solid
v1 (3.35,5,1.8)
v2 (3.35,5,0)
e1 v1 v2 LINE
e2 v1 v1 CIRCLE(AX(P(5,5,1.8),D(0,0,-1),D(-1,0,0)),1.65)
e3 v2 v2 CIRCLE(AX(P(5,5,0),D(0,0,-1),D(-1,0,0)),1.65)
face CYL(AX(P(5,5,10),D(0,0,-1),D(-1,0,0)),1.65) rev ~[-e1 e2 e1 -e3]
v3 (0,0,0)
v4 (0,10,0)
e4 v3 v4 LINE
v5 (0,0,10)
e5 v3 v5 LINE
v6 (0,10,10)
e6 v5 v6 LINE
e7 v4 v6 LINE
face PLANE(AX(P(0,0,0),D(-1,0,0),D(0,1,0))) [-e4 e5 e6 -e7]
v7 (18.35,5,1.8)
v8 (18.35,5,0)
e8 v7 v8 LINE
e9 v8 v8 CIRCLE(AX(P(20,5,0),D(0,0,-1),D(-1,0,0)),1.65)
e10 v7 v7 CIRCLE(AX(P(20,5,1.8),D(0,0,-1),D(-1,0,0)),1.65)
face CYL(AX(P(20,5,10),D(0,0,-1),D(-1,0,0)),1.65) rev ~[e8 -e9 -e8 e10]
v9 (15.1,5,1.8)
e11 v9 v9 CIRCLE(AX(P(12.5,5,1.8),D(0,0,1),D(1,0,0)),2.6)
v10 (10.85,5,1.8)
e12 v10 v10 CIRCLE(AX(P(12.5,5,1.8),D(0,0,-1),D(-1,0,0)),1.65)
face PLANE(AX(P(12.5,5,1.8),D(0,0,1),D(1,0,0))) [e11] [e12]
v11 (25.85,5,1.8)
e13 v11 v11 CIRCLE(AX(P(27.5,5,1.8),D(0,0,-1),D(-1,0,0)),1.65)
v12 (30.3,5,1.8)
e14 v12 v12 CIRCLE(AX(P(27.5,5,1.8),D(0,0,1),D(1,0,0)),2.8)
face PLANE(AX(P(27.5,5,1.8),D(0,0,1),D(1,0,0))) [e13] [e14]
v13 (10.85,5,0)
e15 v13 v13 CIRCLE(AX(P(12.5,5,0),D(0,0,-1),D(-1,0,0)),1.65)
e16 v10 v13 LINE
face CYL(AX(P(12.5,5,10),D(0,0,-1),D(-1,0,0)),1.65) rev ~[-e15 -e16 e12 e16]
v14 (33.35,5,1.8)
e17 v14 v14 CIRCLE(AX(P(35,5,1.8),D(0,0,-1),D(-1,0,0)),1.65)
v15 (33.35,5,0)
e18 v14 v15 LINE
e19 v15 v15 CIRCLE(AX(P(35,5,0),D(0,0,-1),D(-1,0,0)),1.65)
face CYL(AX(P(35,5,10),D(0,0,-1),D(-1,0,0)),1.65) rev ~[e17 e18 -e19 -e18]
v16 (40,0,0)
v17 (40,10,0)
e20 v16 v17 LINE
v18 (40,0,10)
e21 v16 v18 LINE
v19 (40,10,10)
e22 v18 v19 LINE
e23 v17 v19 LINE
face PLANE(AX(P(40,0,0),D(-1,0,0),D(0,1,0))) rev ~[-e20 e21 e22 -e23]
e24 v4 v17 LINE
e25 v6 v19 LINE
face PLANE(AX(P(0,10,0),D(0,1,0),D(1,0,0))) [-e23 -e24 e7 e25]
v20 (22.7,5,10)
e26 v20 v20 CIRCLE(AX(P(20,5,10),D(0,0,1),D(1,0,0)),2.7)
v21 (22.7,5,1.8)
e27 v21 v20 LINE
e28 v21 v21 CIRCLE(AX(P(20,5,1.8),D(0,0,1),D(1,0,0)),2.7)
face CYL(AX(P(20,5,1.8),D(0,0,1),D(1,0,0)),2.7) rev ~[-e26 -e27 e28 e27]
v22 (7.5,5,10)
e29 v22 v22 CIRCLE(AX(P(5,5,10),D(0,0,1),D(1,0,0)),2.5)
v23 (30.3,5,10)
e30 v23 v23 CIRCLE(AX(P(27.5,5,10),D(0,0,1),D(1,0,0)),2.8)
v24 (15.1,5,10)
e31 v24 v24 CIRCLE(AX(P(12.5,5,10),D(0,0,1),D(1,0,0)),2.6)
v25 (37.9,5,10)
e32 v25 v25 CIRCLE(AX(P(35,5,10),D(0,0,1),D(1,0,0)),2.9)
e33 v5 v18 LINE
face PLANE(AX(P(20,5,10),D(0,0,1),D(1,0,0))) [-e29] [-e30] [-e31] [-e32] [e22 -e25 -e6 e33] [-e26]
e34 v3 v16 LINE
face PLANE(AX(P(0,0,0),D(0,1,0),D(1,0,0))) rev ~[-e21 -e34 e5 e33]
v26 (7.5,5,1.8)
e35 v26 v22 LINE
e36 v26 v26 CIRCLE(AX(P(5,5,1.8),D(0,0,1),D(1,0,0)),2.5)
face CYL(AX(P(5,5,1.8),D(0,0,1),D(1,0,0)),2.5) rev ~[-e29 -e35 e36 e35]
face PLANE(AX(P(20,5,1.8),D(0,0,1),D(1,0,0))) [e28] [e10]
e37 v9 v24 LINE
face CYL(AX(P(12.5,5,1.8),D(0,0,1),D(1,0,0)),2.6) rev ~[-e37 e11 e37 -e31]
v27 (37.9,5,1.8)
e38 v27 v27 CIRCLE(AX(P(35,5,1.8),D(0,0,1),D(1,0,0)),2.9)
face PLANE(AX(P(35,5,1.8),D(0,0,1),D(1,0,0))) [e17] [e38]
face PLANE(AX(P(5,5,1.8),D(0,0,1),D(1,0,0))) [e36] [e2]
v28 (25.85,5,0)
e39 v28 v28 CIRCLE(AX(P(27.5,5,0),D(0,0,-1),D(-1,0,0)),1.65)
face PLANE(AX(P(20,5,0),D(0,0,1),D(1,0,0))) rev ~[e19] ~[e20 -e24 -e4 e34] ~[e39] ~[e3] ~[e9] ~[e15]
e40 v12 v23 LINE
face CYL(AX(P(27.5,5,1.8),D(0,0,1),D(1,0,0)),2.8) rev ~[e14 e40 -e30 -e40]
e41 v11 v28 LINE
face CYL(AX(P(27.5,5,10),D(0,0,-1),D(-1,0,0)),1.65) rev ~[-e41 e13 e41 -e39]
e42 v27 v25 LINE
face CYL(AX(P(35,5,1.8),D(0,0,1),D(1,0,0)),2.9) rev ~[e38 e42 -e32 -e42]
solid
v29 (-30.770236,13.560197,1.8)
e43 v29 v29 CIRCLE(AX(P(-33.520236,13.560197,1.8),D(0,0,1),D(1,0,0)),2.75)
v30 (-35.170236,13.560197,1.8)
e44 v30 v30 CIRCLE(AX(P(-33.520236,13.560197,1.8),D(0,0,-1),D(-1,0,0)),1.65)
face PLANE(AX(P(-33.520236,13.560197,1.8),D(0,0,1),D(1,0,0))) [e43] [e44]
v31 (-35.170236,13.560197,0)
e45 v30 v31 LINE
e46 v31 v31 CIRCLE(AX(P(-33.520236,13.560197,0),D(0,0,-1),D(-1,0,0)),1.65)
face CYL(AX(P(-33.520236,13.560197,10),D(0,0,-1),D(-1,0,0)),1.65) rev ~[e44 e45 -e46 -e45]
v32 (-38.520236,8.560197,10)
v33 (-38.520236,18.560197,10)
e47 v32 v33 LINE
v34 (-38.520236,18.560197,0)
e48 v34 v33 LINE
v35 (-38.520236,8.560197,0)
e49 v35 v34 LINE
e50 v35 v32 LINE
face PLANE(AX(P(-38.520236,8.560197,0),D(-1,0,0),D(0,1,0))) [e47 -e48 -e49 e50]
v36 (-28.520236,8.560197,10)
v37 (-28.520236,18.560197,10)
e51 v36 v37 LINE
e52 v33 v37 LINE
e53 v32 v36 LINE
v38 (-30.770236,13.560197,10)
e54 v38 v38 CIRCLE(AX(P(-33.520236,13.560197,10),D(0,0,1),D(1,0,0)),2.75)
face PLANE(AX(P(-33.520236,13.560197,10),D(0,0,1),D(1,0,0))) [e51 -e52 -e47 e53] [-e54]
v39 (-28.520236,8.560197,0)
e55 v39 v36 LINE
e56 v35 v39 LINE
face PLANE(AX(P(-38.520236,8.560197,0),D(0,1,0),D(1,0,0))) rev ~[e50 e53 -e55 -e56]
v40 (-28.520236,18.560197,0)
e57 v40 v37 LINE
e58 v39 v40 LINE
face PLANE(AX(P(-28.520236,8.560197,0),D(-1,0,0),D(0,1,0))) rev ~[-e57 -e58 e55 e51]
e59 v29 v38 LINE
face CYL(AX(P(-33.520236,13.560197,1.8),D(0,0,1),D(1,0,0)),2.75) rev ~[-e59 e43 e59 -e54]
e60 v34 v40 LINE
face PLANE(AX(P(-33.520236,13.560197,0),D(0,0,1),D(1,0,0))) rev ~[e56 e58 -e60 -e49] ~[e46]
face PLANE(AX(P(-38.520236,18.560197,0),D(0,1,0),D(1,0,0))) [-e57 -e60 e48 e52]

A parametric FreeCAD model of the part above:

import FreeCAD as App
import Part
import Sketcher

doc = App.newDocument("Part")
body = doc.addObject("PartDesign::Body", "Body")

# Sketch on XY plane
sketch1 = body.newObject("Sketcher::SketchObject", "Sketch")
sketch1.AttachmentSupport = (doc.getObject("XY_Plane"), [""])
sketch1.MapMode = "FlatFace"
sketch1.addGeometry([
    Part.LineSegment(App.Vector(0, 10, 0), App.Vector(0, 0, 0)),
    Part.LineSegment(App.Vector(0, 0, 0), App.Vector(40, 0, 0)),
    Part.LineSegment(App.Vector(40, 0, 0), App.Vector(40, 10, 0)),
    Part.LineSegment(App.Vector(40, 10, 0), App.Vector(0, 10, 0)),
], False)
sketch1.addConstraint([
    Sketcher.Constraint("Coincident", 0, 2, 1, 1),
    Sketcher.Constraint("Coincident", 1, 2, 2, 1),
    Sketcher.Constraint("Coincident", 2, 2, 3, 1),
    Sketcher.Constraint("Coincident", 3, 2, 0, 1),
    Sketcher.Constraint("Vertical", 0),
    Sketcher.Constraint("Horizontal", 1),
    Sketcher.Constraint("Vertical", 2),
    Sketcher.Constraint("Horizontal", 3),
    Sketcher.Constraint("Coincident", 0, 2, -1, 1),
    Sketcher.Constraint("DistanceX", 1, 1, 1, 2, 40.0),
    Sketcher.Constraint("DistanceY", 0, 2, 0, 1, 10.0),
])
pad1 = body.newObject("PartDesign::Pad", "Pad")
pad1.Profile = sketch1
pad1.Length = 10

# Sketch on XY plane
sketch2 = body.newObject("Sketcher::SketchObject", "Sketch001")
sketch2.AttachmentSupport = (doc.getObject("XY_Plane"), [""])
sketch2.MapMode = "FlatFace"
sketch2.AttachmentOffset = App.Placement(App.Vector(0, 0, 10), App.Rotation())
sketch2.addGeometry(Part.Circle(App.Vector(5, 5, 0), App.Vector(0, 0, 1), 1.6), False)
sketch2.addConstraint([
    Sketcher.Constraint("Diameter", 0, 3.3),
    Sketcher.Constraint("DistanceX", -1, 1, 0, 3, 5.0),
    Sketcher.Constraint("DistanceY", -1, 1, 0, 3, 5.0),
])
doc.recompute()
hole = body.newObject("PartDesign::Hole", "Hole")
hole.Profile = sketch2
hole.ThreadType = "None"
hole.Diameter = 3.3
hole.DepthType = "ThroughAll"
hole.HoleCutType = "Counterbore"
hole.HoleCutDiameter = 5
hole.HoleCutDepth = 8.2

# Sketch on XY plane
sketch3 = body.newObject("Sketcher::SketchObject", "Sketch002")
sketch3.AttachmentSupport = (doc.getObject("XY_Plane"), [""])
sketch3.MapMode = "FlatFace"
sketch3.AttachmentOffset = App.Placement(App.Vector(0, 0, 10), App.Rotation())
sketch3.addGeometry(Part.Circle(App.Vector(12.5, 5, 0), App.Vector(0, 0, 1), 1.6), False)
sketch3.addConstraint([
    Sketcher.Constraint("Diameter", 0, 3.3),
    Sketcher.Constraint("DistanceY", -1, 1, 0, 3, 5.0),
    Sketcher.Constraint("DistanceX", -1, 1, 0, 3, 12.5),
])
doc.recompute()
hole2 = body.newObject("PartDesign::Hole", "Hole001")
hole2.Profile = sketch3
hole2.ThreadType = "None"
hole2.Diameter = 3.3
hole2.DepthType = "ThroughAll"
hole2.HoleCutType = "Counterbore"
hole2.HoleCutDiameter = 5.2
hole2.HoleCutDepth = 8.2

# Sketch on XY plane
sketch4 = body.newObject("Sketcher::SketchObject", "Sketch003")
sketch4.AttachmentSupport = (doc.getObject("XY_Plane"), [""])
sketch4.MapMode = "FlatFace"
sketch4.AttachmentOffset = App.Placement(App.Vector(0, 0, 10), App.Rotation())
sketch4.addGeometry(Part.Circle(App.Vector(20, 5, 0), App.Vector(0, 0, 1), 1.6), False)
sketch4.addConstraint([
    Sketcher.Constraint("Diameter", 0, 3.3),
    Sketcher.Constraint("DistanceX", -1, 1, 0, 3, 20.0),
    Sketcher.Constraint("DistanceY", -1, 1, 0, 3, 5.0),
])
doc.recompute()
hole3 = body.newObject("PartDesign::Hole", "Hole002")
hole3.Profile = sketch4
hole3.ThreadType = "None"
hole3.Diameter = 3.3
hole3.DepthType = "ThroughAll"
hole3.HoleCutType = "Counterbore"
hole3.HoleCutDiameter = 5.4
hole3.HoleCutDepth = 8.2

# Sketch on XY plane
sketch5 = body.newObject("Sketcher::SketchObject", "Sketch004")
sketch5.AttachmentSupport = (doc.getObject("XY_Plane"), [""])
sketch5.MapMode = "FlatFace"
sketch5.AttachmentOffset = App.Placement(App.Vector(0, 0, 10), App.Rotation())
sketch5.addGeometry(Part.Circle(App.Vector(27.5, 5, 0), App.Vector(0, 0, 1), 1.6), False)
sketch5.addConstraint([
    Sketcher.Constraint("Diameter", 0, 3.3),
    Sketcher.Constraint("DistanceY", -1, 1, 0, 3, 5.0),
    Sketcher.Constraint("DistanceX", -1, 1, 0, 3, 27.5),
])
doc.recompute()
hole4 = body.newObject("PartDesign::Hole", "Hole003")
hole4.Profile = sketch5
hole4.ThreadType = "None"
hole4.Diameter = 3.3
hole4.DepthType = "ThroughAll"
hole4.HoleCutType = "Counterbore"
hole4.HoleCutDiameter = 5.6
hole4.HoleCutDepth = 8.2

# Sketch on XY plane
sketch6 = body.newObject("Sketcher::SketchObject", "Sketch005")
sketch6.AttachmentSupport = (doc.getObject("XY_Plane"), [""])
sketch6.MapMode = "FlatFace"
sketch6.AttachmentOffset = App.Placement(App.Vector(0, 0, 10), App.Rotation())
sketch6.addGeometry(Part.Circle(App.Vector(35, 5, 0), App.Vector(0, 0, 1), 1.6), False)
sketch6.addConstraint([
    Sketcher.Constraint("Diameter", 0, 3.3),
    Sketcher.Constraint("DistanceX", -1, 1, 0, 3, 35.0),
    Sketcher.Constraint("DistanceY", -1, 1, 0, 3, 5.0),
])
doc.recompute()
hole5 = body.newObject("PartDesign::Hole", "Hole004")
hole5.Profile = sketch6
hole5.ThreadType = "None"
hole5.Diameter = 3.3
hole5.DepthType = "ThroughAll"
hole5.HoleCutType = "Counterbore"
hole5.HoleCutDiameter = 5.8
hole5.HoleCutDepth = 8.2
body2 = doc.addObject("PartDesign::Body", "Body001")

# Sketch on XY plane
sketch7 = body2.newObject("Sketcher::SketchObject", "Sketch006")
sketch7.AttachmentSupport = (doc.getObject("XY_Plane001"), [""])
sketch7.MapMode = "FlatFace"
sketch7.addGeometry([
    Part.LineSegment(App.Vector(-39, 19, 0), App.Vector(-39, 9, 0)),
    Part.LineSegment(App.Vector(-39, 9, 0), App.Vector(-29, 9, 0)),
    Part.LineSegment(App.Vector(-29, 9, 0), App.Vector(-29, 19, 0)),
    Part.LineSegment(App.Vector(-29, 19, 0), App.Vector(-39, 19, 0)),
], False)
sketch7.addConstraint([
    Sketcher.Constraint("Coincident", 0, 2, 1, 1),
    Sketcher.Constraint("Coincident", 1, 2, 2, 1),
    Sketcher.Constraint("Coincident", 2, 2, 3, 1),
    Sketcher.Constraint("Coincident", 3, 2, 0, 1),
    Sketcher.Constraint("Vertical", 0),
    Sketcher.Constraint("Horizontal", 1),
    Sketcher.Constraint("Vertical", 2),
    Sketcher.Constraint("Horizontal", 3),
    Sketcher.Constraint("Equal", 3, 0),
    Sketcher.Constraint("DistanceX", 1, 1, 1, 2, 10.0),
    Sketcher.Constraint("DistanceX", 0, 2, -1, 1, 38.520236),
    Sketcher.Constraint("DistanceY", -1, 1, 0, 2, 8.560197),
])
pad2 = body2.newObject("PartDesign::Pad", "Pad001")
pad2.Profile = sketch7
pad2.Length = 10

# Sketch on XY plane
sketch8 = body2.newObject("Sketcher::SketchObject", "Sketch007")
sketch8.AttachmentSupport = (doc.getObject("XY_Plane001"), [""])
sketch8.MapMode = "FlatFace"
sketch8.AttachmentOffset = App.Placement(App.Vector(0, 0, 10), App.Rotation())
sketch8.addGeometry(Part.Circle(App.Vector(-33.5, 13.6, 0), App.Vector(0, 0, 1), 1.6), False)
sketch8.addConstraint([
    Sketcher.Constraint("Diameter", 0, 3.3),
    Sketcher.Constraint("DistanceX", 0, 3, -1, 1, 33.520236),
    Sketcher.Constraint("DistanceY", -1, 1, 0, 3, 13.560197),
])
doc.recompute()
hole6 = body2.newObject("PartDesign::Hole", "Hole005")
hole6.Profile = sketch8
hole6.ThreadType = "None"
hole6.Diameter = 3.3
hole6.DepthType = "ThroughAll"
hole6.HoleCutType = "Counterbore"
hole6.HoleCutDiameter = 5.5
hole6.HoleCutDepth = 8.2

doc.recompute()
